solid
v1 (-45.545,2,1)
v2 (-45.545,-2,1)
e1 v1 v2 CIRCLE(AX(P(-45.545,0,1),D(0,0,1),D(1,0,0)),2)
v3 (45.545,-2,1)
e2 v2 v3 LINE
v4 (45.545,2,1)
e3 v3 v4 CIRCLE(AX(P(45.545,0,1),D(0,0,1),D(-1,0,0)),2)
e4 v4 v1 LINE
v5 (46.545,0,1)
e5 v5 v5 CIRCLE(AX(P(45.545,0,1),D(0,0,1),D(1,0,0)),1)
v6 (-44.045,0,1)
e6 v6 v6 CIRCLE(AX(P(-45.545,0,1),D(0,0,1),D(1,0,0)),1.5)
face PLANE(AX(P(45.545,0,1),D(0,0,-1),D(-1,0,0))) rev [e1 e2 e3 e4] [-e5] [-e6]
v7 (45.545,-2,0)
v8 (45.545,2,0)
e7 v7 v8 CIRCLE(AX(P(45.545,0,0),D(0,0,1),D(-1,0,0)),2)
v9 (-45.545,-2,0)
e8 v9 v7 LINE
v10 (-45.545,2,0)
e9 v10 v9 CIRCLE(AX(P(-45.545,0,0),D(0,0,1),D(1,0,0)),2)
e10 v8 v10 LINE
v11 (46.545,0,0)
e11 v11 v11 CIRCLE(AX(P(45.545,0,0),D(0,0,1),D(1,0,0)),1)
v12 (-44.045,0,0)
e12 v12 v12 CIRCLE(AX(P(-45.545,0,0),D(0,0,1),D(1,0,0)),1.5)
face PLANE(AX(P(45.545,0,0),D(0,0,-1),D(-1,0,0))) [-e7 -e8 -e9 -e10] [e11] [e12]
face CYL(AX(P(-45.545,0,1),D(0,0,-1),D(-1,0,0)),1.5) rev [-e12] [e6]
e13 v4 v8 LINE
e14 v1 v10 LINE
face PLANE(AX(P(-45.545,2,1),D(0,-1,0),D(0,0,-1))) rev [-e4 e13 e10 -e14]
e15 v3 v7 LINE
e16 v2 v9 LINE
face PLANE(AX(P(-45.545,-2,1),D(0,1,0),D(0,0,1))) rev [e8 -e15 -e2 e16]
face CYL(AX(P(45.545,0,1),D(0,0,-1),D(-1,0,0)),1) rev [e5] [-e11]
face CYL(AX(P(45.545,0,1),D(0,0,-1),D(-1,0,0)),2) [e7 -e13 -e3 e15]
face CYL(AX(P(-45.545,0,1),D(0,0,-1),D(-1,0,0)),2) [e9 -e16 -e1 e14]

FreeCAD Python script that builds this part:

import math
import FreeCAD as App
import Part
import Sketcher
from FreeCAD import Vector
Q = App.Units.Quantity

doc = App.newDocument("Part")
body = doc.addObject("PartDesign::Body", "Body")

# Sketch on XY plane
sketch1 = body.newObject("Sketcher::SketchObject", "Sketch")
sketch1.AttachmentSupport = (doc.getObject("XY_Plane"), [""])
sketch1.MapMode = "FlatFace"
sketch1.addGeometry([
    Part.LineSegment(Vector(45.5, 2, 0), Vector(-45.5, 2, 0)),  # 0
    Part.ArcOfCircle(Part.Circle(Vector(-45.5, 0, 0), Vector(0, 0, 1), 2), math.radians(90), math.radians(270)),  # 1
    Part.LineSegment(Vector(-45.5, -2, 0), Vector(45.5, -2, 0)),  # 2
    Part.ArcOfCircle(Part.Circle(Vector(45.5, 0, 0), Vector(0, 0, 1), 2), math.radians(-90), math.radians(90)),  # 3
    Part.Circle(Vector(45.5, 0, 0), Vector(0, 0, 1), 1),  # 4
    Part.Circle(Vector(-45.5, 0, 0), Vector(0, 0, 1), 1.5),  # 5
], False)
sketch1.addConstraint([
    Sketcher.Constraint("Tangent", 0, 2, 1, 1),
    Sketcher.Constraint("Tangent", 1, 2, 2, 1),
    Sketcher.Constraint("Tangent", 2, 2, 3, 1),
    Sketcher.Constraint("Tangent", 3, 2, 0, 1),
    Sketcher.Constraint("Horizontal", 0),
    Sketcher.Constraint("Horizontal", 2),
    Sketcher.Constraint("Coincident", 4, 3, 3, 3),
    Sketcher.Constraint("Coincident", 5, 3, 1, 3),
    Sketcher.Constraint("Symmetric", 1, 3, 3, 3, -1, 1),
    Sketcher.Constraint("Diameter", 4, Q("2 mm")),
    Sketcher.Constraint("Diameter", 5, Q("3 mm")),
    Sketcher.Constraint("Radius", 1, Q("2 mm")),
    Sketcher.Constraint("DistanceX", 0, 2, 0, 1, Q("91.09 mm")),
])
pad1 = body.newObject("PartDesign::Pad", "Pad")
pad1.Profile = sketch1
pad1.Length = 1

doc.recompute()
